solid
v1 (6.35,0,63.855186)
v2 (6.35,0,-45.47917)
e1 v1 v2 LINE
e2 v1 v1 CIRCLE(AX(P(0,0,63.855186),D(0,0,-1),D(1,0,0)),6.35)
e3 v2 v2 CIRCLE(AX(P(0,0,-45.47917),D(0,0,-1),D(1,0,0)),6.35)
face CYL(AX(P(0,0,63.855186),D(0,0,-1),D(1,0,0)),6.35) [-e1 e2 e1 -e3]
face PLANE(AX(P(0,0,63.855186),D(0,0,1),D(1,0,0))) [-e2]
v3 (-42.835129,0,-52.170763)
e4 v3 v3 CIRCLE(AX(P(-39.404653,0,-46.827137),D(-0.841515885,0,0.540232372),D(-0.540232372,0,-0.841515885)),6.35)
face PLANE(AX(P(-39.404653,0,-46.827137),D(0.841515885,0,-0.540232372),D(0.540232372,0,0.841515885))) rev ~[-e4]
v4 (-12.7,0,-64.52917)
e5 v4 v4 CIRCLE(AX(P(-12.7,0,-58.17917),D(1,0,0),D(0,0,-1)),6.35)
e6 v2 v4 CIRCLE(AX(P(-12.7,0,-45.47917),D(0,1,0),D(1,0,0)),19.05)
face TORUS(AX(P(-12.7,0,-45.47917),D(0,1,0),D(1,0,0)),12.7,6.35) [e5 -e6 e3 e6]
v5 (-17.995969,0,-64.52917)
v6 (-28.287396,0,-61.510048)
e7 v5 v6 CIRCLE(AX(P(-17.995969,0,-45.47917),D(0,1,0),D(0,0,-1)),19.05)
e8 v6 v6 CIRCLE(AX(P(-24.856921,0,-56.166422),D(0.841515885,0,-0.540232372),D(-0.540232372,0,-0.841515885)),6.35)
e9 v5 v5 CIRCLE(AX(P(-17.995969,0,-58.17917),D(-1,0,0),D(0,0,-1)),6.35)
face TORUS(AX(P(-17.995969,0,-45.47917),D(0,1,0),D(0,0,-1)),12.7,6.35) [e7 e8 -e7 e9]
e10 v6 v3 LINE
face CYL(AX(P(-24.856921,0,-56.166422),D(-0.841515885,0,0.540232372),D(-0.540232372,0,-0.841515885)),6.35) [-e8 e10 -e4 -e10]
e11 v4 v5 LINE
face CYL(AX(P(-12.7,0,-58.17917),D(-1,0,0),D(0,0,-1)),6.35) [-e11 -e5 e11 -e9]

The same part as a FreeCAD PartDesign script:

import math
import FreeCAD as App
import Part
import Sketcher

V = App.Vector
Q = App.Units.Quantity

doc = App.newDocument("Part")
body = doc.addObject("PartDesign::Body", "Body")

# Sketch on XY plane
sketch1 = body.newObject("Sketcher::SketchObject", "Sketch")
sketch1.AttachmentSupport = (doc.getObject("XY_Plane"), [""])
sketch1.MapMode = "FlatFace"
sketch1.AttachmentOffset = App.Placement(V(0, 0, 63.855186), App.Rotation())
sketch1.addGeometry(Part.Circle(V(0, 0, 0), V(0, 0, 1), 6), False)
sketch1.addConstraint(Sketcher.Constraint("Coincident", 0, 3, -1, 1))
sketch1.addConstraint(Sketcher.Constraint("Diameter", 0, Q("0.5 in")))

# Sketch on XZ plane
sketch2 = body.newObject("Sketcher::SketchObject", "Sketch001")
sketch2.AttachmentSupport = (doc.getObject("XZ_Plane"), [""])
sketch2.MapMode = "FlatFace"
sketch2.addGeometry(Part.LineSegment(V(0, 64, 0), V(0, -45, 0)), False)
sketch2.addGeometry(Part.ArcOfCircle(Part.Circle(V(-13, -45, 0), V(0, 0, 1), 13), math.radians(-90), math.radians(0)), False)
sketch2.addGeometry(Part.LineSegment(V(-13, -58, 0), V(-18, -58, 0)), False)
sketch2.addGeometry(Part.ArcOfCircle(Part.Circle(V(-18, -45, 0), V(0, 0, 1), 13), math.radians(-123), math.radians(-90)), False)
sketch2.addGeometry(Part.LineSegment(V(-25, -56, 0), V(-39, -47, 0)), False)
sketch2.addConstraint(Sketcher.Constraint("Tangent", 0, 2, 1, 2))
sketch2.addConstraint(Sketcher.Constraint("Tangent", 1, 1, 2, 1))
sketch2.addConstraint(Sketcher.Constraint("Tangent", 2, 2, 3, 2))
sketch2.addConstraint(Sketcher.Constraint("Tangent", 3, 1, 4, 1))
sketch2.addConstraint(Sketcher.Constraint("Vertical", 0))
sketch2.addConstraint(Sketcher.Constraint("Horizontal", 2))
sketch2.addConstraint(Sketcher.Constraint("Equal", 1, 3))
sketch2.addConstraint(Sketcher.Constraint("PointOnObject", 0, 1, -2))
sketch2.addConstraint(Sketcher.Constraint("Radius", 1, Q("0.5 in")))
sketch2.addConstraint(Sketcher.Constraint("DistanceX", 2, 2, 2, 1, Q("5.295969 mm")))
sketch2.addConstraint(Sketcher.Constraint("Distance", 4, Q("17.287532 mm")))
sketch2.addConstraint(Sketcher.Constraint("DistanceY", 0, 2, 0, 1, Q("109.334356 mm")))
sketch2.addConstraint(Sketcher.Constraint("DistanceY", 1, 3, -1, 1, Q("45.47917 mm")))
sketch2.addConstraint(Sketcher.Constraint("DistanceX", 3, 1, -1, 1, Q("24.856921 mm")))
doc.recompute()

additivepipe = body.newObject("PartDesign::AdditivePipe", "AdditivePipe")
additivepipe.Profile = sketch1
additivepipe.Spine = (sketch2, ["Edge1", "Edge2", "Edge3", "Edge4", "Edge5"])

doc.recompute()
